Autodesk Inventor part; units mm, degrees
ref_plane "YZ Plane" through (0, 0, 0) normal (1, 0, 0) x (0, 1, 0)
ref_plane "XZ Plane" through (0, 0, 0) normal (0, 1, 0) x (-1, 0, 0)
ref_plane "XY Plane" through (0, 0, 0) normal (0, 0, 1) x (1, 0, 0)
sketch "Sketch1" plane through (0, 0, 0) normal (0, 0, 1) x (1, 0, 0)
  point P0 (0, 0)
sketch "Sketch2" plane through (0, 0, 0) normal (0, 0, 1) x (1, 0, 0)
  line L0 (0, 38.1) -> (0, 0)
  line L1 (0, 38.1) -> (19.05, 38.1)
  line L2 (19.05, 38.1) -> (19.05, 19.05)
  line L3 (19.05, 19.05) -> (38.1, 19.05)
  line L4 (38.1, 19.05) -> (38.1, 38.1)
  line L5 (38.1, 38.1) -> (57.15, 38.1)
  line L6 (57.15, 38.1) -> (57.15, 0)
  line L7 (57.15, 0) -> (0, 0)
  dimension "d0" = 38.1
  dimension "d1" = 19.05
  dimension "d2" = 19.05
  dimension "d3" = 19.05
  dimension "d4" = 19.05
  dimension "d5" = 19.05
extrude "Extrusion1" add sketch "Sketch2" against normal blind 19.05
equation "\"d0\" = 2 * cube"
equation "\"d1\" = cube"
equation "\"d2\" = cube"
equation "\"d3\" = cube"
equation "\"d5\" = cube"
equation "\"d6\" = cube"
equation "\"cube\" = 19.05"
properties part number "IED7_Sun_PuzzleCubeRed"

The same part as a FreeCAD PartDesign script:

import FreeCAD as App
import Part
import Sketcher
Q = App.Units.Quantity


def add_polygon(sketch, points):
    """Adds a closed chain of lines whose ends are joined by coincident constraints."""
    first, n = sketch.GeometryCount, len(points)
    for a, b in zip(points, points[1:] + points[:1]):
        sketch.addGeometry(Part.LineSegment(App.Vector(*a, 0), App.Vector(*b, 0)), False)
    for i in range(n):
        sketch.addConstraint(Sketcher.Constraint("Coincident", first + i, 2, first + (i + 1) % n, 1))

doc = App.newDocument("Part")
params = doc.addObject("Spreadsheet::Sheet", "Params")
for row, (alias, value) in enumerate([
    ("sketch1_height", "1.5 in"),
    ("sketch1_width", "0.75 in"),
    ("pad1_length", "0.75 in"),
], start=1):
    params.set(f"A{row}", alias)
    params.set(f"B{row}", "=" + value)
    params.setAlias(f"B{row}", alias)

body = doc.addObject("PartDesign::Body", "Body")

# Sketch on XY plane
sketch1 = doc.addObject("Sketcher::SketchObject", "Sketch")
body.addObject(sketch1)
sketch1.AttachmentSupport = (doc.XY_Plane, [""])
sketch1.MapMode = "FlatFace"
add_polygon(sketch1, [(19.05, 38.1), (0, 38.1), (0, 0), (57.15, 0), (57.15, 38.1), (38.1, 38.1), (38.1, 19.05), (19.05, 19.05)])  # lines 0-7
sketch1.addConstraint([
    Sketcher.Constraint("Horizontal", 0),
    Sketcher.Constraint("Vertical", 1),
    Sketcher.Constraint("Horizontal", 2),
    Sketcher.Constraint("Vertical", 3),
    Sketcher.Constraint("Horizontal", 4),
    Sketcher.Constraint("Vertical", 5),
    Sketcher.Constraint("Horizontal", 6),
    Sketcher.Constraint("Vertical", 7),
    Sketcher.Constraint("Coincident", 1, 2, -1, 1),
    Sketcher.Constraint("Horizontal", 0, 2, 3, 2),
    Sketcher.Constraint("Equal", 0, 4),
    Sketcher.Constraint("Equal", 4, 6),
    Sketcher.Constraint("Equal", 6, 5),
    Sketcher.Constraint("DistanceY", 1, 2, 1, 1, Q("1.5 in")),
    Sketcher.Constraint("DistanceX", 0, 2, 0, 1, Q("0.75 in")),
])
sketch1.setExpression("Constraints[21]", "Params.sketch1_height")
sketch1.setExpression("Constraints[22]", "Params.sketch1_width")
pad1 = doc.addObject("PartDesign::Pad", "Pad")
body.addObject(pad1)
pad1.Profile = sketch1
pad1.setExpression("Length", "Params.pad1_length")
pad1.Reversed = True

doc.recompute()
